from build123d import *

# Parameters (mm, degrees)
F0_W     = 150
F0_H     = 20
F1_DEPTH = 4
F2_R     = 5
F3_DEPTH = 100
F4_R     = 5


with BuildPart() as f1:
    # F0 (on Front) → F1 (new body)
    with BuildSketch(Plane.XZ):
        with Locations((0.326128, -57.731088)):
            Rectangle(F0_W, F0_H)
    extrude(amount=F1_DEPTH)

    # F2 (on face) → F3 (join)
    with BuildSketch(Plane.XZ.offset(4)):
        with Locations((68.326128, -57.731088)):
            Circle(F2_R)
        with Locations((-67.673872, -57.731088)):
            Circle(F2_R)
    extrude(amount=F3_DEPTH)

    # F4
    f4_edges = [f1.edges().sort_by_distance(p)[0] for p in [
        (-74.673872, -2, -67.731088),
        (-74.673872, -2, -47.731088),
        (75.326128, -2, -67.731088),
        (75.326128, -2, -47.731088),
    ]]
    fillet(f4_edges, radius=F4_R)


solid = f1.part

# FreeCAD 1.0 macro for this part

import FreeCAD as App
import Part
import Sketcher


def edges_at(feature, points):
    """Names of the edges that pass closest to the given points."""
    edges = feature.Shape.Edges
    near = lambda p: min(range(len(edges)), key=lambda i: edges[i].distToShape(Part.Vertex(*p))[0])
    return sorted({f"Edge{near(p) + 1}" for p in points})


def add_polygon(sketch, points):
    """Adds a closed chain of lines whose ends are joined by coincident constraints."""
    first, n = sketch.GeometryCount, len(points)
    for a, b in zip(points, points[1:] + points[:1]):
        sketch.addGeometry(Part.LineSegment(App.Vector(*a, 0), App.Vector(*b, 0)), False)
    for i in range(n):
        sketch.addConstraint(Sketcher.Constraint("Coincident", first + i, 2, first + (i + 1) % n, 1))

doc = App.newDocument("Part")
body = doc.addObject("PartDesign::Body", "Body")

sketch1 = body.newObject("Sketcher::SketchObject", "Sketch")
sketch1.AttachmentSupport = (doc.getObject("XZ_Plane"), [""])
sketch1.MapMode = "FlatFace"
add_polygon(sketch1, [(-74.673872, -47.731088), (-74.673872, -67.731088), (75.326128, -67.731088), (75.326128, -47.731088)])
sketch1.addConstraint([
    Sketcher.Constraint("Vertical", 0),
    Sketcher.Constraint("Horizontal", 1),
    Sketcher.Constraint("Vertical", 2),
    Sketcher.Constraint("Horizontal", 3),
    Sketcher.Constraint("DistanceX", 1, 1, 1, 2, 150.0),
    Sketcher.Constraint("DistanceY", 0, 2, 0, 1, 20.0),
    Sketcher.Constraint("DistanceY", 0, 2, -1, 1, 67.731088),
    Sketcher.Constraint("DistanceX", 0, 2, -1, 1, 74.673872),
])
pad1 = body.newObject("PartDesign::Pad", "Pad")
pad1.Profile = sketch1
pad1.Length = 4

sketch2 = body.newObject("Sketcher::SketchObject", "Sketch001")
sketch2.AttachmentSupport = (doc.getObject("XZ_Plane"), [""])
sketch2.MapMode = "FlatFace"
sketch2.AttachmentOffset = App.Placement(App.Vector(0, 0, 4), App.Rotation())
sketch2.addGeometry([
    Part.Circle(App.Vector(68.326128, -57.731088, 0), App.Vector(0, 0, 1), 5),
    Part.Circle(App.Vector(-67.673872, -57.731088, 0), App.Vector(0, 0, 1), 5),
], False)
sketch2.addConstraint([
    Sketcher.Constraint("Equal", 0, 1),
    Sketcher.Constraint("Horizontal", 0, 3, 1, 3),
    Sketcher.Constraint("Diameter", 0, 10.0),
    Sketcher.Constraint("DistanceX", 1, 3, 0, 3, 136.0),
    Sketcher.Constraint("DistanceX", -1, 1, 0, 3, 68.326128),
    Sketcher.Constraint("DistanceY", 0, 3, -1, 1, 57.731088),
])
pad2 = body.newObject("PartDesign::Pad", "Pad001")
pad2.Profile = sketch2
pad2.Length = 100
doc.recompute()

fillet = body.newObject("PartDesign::Fillet", "Fillet")
fillet.Base = (pad2, edges_at(pad2, [
    (-74.674, -2, -67.731),
    (-74.674, -2, -47.731),
    (75.326, -2, -67.731),
    (75.326, -2, -47.731),
]))
fillet.Radius = 5

doc.recompute()
